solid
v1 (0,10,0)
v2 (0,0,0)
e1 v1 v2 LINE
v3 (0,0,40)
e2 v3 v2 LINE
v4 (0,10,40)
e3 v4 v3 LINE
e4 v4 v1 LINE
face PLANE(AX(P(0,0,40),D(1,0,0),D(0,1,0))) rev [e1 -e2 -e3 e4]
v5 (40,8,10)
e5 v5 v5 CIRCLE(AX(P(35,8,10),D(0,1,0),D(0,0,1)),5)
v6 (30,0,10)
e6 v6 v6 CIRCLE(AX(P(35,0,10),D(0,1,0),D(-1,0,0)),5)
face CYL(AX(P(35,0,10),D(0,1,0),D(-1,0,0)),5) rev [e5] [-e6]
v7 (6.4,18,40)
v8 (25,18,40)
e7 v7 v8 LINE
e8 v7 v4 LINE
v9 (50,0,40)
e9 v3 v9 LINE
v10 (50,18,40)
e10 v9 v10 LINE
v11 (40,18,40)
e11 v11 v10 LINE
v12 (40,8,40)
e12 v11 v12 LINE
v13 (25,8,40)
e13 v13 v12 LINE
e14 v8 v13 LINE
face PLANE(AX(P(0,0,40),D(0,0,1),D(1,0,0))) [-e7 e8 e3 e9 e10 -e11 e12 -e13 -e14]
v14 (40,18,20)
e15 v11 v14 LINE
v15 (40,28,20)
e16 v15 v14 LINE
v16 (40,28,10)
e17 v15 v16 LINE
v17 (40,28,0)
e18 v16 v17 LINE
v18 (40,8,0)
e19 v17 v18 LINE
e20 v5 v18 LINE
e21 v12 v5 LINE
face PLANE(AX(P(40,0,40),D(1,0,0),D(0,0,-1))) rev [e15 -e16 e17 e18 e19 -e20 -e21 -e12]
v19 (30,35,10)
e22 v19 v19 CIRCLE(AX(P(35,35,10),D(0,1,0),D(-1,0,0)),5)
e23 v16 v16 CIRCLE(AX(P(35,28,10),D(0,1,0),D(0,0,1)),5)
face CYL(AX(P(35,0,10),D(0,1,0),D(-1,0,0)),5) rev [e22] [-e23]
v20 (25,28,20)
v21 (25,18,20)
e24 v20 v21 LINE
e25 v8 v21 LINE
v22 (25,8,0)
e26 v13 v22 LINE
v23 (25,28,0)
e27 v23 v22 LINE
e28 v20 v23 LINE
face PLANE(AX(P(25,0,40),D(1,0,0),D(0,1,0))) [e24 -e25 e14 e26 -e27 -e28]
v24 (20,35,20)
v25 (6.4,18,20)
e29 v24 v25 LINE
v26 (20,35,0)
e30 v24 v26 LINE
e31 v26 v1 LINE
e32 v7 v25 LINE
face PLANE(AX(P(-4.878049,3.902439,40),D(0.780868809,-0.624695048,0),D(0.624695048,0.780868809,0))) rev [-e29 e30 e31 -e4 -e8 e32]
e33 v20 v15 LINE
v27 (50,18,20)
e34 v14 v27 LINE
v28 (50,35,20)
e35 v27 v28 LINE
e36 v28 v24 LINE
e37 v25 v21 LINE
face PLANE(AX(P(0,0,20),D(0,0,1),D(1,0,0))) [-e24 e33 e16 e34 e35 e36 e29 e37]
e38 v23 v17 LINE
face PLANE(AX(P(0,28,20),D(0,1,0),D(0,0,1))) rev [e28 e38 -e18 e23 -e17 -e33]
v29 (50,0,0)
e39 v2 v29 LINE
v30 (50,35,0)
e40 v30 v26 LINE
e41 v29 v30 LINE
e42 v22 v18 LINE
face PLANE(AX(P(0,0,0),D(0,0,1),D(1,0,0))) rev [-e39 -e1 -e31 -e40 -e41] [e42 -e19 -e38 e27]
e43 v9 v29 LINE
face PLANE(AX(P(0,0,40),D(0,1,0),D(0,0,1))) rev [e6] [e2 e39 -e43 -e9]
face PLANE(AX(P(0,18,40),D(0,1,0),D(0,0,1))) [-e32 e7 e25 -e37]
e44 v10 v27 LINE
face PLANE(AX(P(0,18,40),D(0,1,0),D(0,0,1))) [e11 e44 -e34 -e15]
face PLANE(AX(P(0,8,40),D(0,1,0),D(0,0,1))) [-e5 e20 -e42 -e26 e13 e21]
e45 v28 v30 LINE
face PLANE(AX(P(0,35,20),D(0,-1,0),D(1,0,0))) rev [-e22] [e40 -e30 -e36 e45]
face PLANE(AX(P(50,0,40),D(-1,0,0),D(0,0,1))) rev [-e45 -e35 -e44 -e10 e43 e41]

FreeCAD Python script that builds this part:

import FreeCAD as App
import Part
import Sketcher

doc = App.newDocument("Part")
body = doc.addObject("PartDesign::Body", "Body")

sketch1 = doc.addObject("Sketcher::SketchObject", "Sketch")
body.addObject(sketch1)
sketch1.AttachmentSupport = (doc.XY_Plane, [""])
sketch1.MapMode = "FlatFace"
sketch1.addGeometry([
    Part.LineSegment(App.Vector(0, 10, 0), App.Vector(0, 0, 0)),
    Part.LineSegment(App.Vector(0, 0, 0), App.Vector(50, 0, 0)),
    Part.LineSegment(App.Vector(50, 0, 0), App.Vector(50, 18, 0)),
    Part.LineSegment(App.Vector(50, 18, 0), App.Vector(40, 18, 0)),
    Part.LineSegment(App.Vector(40, 18, 0), App.Vector(40, 8, 0)),
    Part.LineSegment(App.Vector(40, 8, 0), App.Vector(25, 8, 0)),
    Part.LineSegment(App.Vector(25, 8, 0), App.Vector(25, 18, 0)),
    Part.LineSegment(App.Vector(25, 18, 0), App.Vector(6, 18, 0)),
    Part.LineSegment(App.Vector(6, 18, 0), App.Vector(0, 10, 0)),
], False)
sketch1.addConstraint([
    Sketcher.Constraint("Coincident", 0, 2, 1, 1),
    Sketcher.Constraint("Coincident", 1, 2, 2, 1),
    Sketcher.Constraint("Coincident", 2, 2, 3, 1),
    Sketcher.Constraint("Coincident", 3, 2, 4, 1),
    Sketcher.Constraint("Coincident", 4, 2, 5, 1),
    Sketcher.Constraint("Coincident", 5, 2, 6, 1),
    Sketcher.Constraint("Coincident", 6, 2, 7, 1),
    Sketcher.Constraint("Coincident", 7, 2, 8, 1),
    Sketcher.Constraint("Coincident", 8, 2, 0, 1),
    Sketcher.Constraint("Vertical", 0),
    Sketcher.Constraint("Horizontal", 1),
    Sketcher.Constraint("Vertical", 2),
    Sketcher.Constraint("Horizontal", 3),
    Sketcher.Constraint("Vertical", 4),
    Sketcher.Constraint("Horizontal", 5),
    Sketcher.Constraint("Vertical", 6),
    Sketcher.Constraint("Horizontal", 7),
    Sketcher.Constraint("Coincident", 0, 2, -1, 1),
    Sketcher.Constraint("Horizontal", 3, 2, 6, 2),
    Sketcher.Constraint("Equal", 3, 0),
    Sketcher.Constraint("Equal", 0, 4),
    Sketcher.Constraint("DistanceX", 1, 1, 1, 2, 50.0),
    Sketcher.Constraint("DistanceX", 3, 2, 3, 1, 10.0),
    Sketcher.Constraint("DistanceX", 5, 2, 5, 1, 15.0),
    Sketcher.Constraint("DistanceY", 2, 1, 2, 2, 18.0),
    Sketcher.Constraint("DistanceX", 7, 2, 7, 1, 18.6),
])
pad1 = doc.addObject("PartDesign::Pad", "Pad")
body.addObject(pad1)
pad1.Profile = sketch1
pad1.Length = 40

sketch2 = doc.addObject("Sketcher::SketchObject", "Sketch001")
body.addObject(sketch2)
sketch2.AttachmentSupport = (doc.XY_Plane, [""])
sketch2.MapMode = "FlatFace"
sketch2.addGeometry([
    Part.LineSegment(App.Vector(40, 18, 0), App.Vector(50, 18, 0)),
    Part.LineSegment(App.Vector(50, 18, 0), App.Vector(50, 35, 0)),
    Part.LineSegment(App.Vector(50, 35, 0), App.Vector(20, 35, 0)),
    Part.LineSegment(App.Vector(20, 35, 0), App.Vector(6, 18, 0)),
    Part.LineSegment(App.Vector(6, 18, 0), App.Vector(25, 18, 0)),
    Part.LineSegment(App.Vector(25, 18, 0), App.Vector(25, 28, 0)),
    Part.LineSegment(App.Vector(25, 28, 0), App.Vector(40, 28, 0)),
    Part.LineSegment(App.Vector(40, 28, 0), App.Vector(40, 18, 0)),
], False)
sketch2.addConstraint([
    Sketcher.Constraint("Coincident", 0, 2, 1, 1),
    Sketcher.Constraint("Coincident", 1, 2, 2, 1),
    Sketcher.Constraint("Coincident", 2, 2, 3, 1),
    Sketcher.Constraint("Coincident", 3, 2, 4, 1),
    Sketcher.Constraint("Coincident", 4, 2, 5, 1),
    Sketcher.Constraint("Coincident", 5, 2, 6, 1),
    Sketcher.Constraint("Coincident", 6, 2, 7, 1),
    Sketcher.Constraint("Coincident", 7, 2, 0, 1),
    Sketcher.Constraint("Horizontal", 0),
    Sketcher.Constraint("Vertical", 1),
    Sketcher.Constraint("Horizontal", 2),
    Sketcher.Constraint("Horizontal", 4),
    Sketcher.Constraint("Vertical", 5),
    Sketcher.Constraint("Horizontal", 6),
    Sketcher.Constraint("Vertical", 7),
    Sketcher.Constraint("Horizontal", 0, 2, 3, 2),
    Sketcher.Constraint("Equal", 0, 5),
    Sketcher.Constraint("DistanceX", 0, 1, 0, 2, 10.0),
    Sketcher.Constraint("DistanceX", 2, 2, 2, 1, 30.0),
    Sketcher.Constraint("DistanceX", 6, 1, 6, 2, 15.0),
    Sketcher.Constraint("DistanceY", 1, 1, 1, 2, 17.0),
    Sketcher.Constraint("DistanceX", 4, 1, 4, 2, 18.6),
    Sketcher.Constraint("DistanceX", -1, 1, 0, 2, 50.0),
    Sketcher.Constraint("DistanceY", -1, 1, 0, 2, 18.0),
])
pad2 = doc.addObject("PartDesign::Pad", "Pad001")
body.addObject(pad2)
pad2.Profile = sketch2
pad2.Length = 20

sketch3 = doc.addObject("Sketcher::SketchObject", "Sketch002")
body.addObject(sketch3)
sketch3.AttachmentSupport = (doc.XZ_Plane, [""])
sketch3.MapMode = "FlatFace"
sketch3.AttachmentOffset = App.Placement(App.Vector(0, 0, -35), App.Rotation())
sketch3.addGeometry(Part.Circle(App.Vector(35, 10, 0), App.Vector(0, 0, 1), 5), False)
sketch3.addConstraint([
    Sketcher.Constraint("Diameter", 0, 10.0),
    Sketcher.Constraint("DistanceX", -1, 1, 0, 3, 35.0),
    Sketcher.Constraint("DistanceY", -1, 1, 0, 3, 10.0),
])
pocket1 = doc.addObject("PartDesign::Pocket", "Pocket")
body.addObject(pocket1)
pocket1.Profile = sketch3
pocket1.Type = "ThroughAll"
pocket1.Reversed = True

doc.recompute()
